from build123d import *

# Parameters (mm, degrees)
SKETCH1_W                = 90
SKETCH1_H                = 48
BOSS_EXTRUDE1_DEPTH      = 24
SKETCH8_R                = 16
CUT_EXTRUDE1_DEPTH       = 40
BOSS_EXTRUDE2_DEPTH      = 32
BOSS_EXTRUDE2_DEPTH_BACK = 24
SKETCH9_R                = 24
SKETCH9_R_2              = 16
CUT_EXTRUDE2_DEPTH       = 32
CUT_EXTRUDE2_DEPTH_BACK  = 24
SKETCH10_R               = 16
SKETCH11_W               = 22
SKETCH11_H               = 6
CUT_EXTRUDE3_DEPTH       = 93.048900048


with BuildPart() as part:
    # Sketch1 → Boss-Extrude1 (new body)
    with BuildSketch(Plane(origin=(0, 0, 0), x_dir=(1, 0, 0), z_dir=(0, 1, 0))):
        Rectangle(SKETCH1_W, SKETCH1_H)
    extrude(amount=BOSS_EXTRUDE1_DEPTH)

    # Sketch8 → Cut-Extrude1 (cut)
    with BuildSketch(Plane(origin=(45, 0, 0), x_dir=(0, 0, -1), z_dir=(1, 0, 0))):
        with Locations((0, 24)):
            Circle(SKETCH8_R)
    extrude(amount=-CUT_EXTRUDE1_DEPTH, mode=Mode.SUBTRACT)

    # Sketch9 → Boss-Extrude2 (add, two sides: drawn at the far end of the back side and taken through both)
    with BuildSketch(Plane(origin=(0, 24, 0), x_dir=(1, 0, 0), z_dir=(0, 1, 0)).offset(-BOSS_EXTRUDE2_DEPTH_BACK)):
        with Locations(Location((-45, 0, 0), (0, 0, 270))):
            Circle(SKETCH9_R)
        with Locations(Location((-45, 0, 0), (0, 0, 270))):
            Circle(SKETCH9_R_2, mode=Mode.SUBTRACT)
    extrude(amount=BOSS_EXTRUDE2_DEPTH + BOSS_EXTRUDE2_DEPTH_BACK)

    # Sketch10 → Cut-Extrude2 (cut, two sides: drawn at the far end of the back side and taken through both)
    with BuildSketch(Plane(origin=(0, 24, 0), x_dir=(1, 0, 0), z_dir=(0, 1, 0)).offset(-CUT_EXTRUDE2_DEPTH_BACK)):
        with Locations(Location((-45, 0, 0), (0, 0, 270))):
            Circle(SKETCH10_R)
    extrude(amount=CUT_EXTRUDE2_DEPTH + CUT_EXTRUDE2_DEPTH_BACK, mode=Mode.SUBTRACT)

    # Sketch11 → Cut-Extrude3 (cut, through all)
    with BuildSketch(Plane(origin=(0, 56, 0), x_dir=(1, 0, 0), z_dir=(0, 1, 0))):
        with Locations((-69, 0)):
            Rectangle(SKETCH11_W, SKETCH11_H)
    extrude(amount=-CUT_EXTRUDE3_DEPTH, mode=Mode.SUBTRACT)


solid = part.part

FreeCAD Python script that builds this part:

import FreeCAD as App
import Part
import Sketcher

V = App.Vector
Q = App.Units.Quantity


def add_polygon(sketch, points):
    """Adds a closed chain of lines whose ends are joined by coincident constraints."""
    first, n = sketch.GeometryCount, len(points)
    for a, b in zip(points, points[1:] + points[:1]):
        sketch.addGeometry(Part.LineSegment(App.Vector(*a, 0), App.Vector(*b, 0)), False)
    for i in range(n):
        sketch.addConstraint(Sketcher.Constraint("Coincident", first + i, 2, first + (i + 1) % n, 1))

doc = App.newDocument("Part")
body = doc.addObject("PartDesign::Body", "Body")

# Sketch on XZ plane
sketch1 = body.newObject("Sketcher::SketchObject", "Sketch")
sketch1.AttachmentSupport = (doc.getObject("XZ_Plane"), [""])
sketch1.MapMode = "FlatFace"
add_polygon(sketch1, [(-45, -24), (-45, 24), (45, 24), (45, -24)])  # lines 0-3
sketch1.addConstraint([
    Sketcher.Constraint("Vertical", 0),
    Sketcher.Constraint("Horizontal", 1),
    Sketcher.Constraint("Vertical", 2),
    Sketcher.Constraint("Horizontal", 3),
    Sketcher.Constraint("Symmetric", 0, 2, 2, 2, -1, 1),
    Sketcher.Constraint("DistanceX", 1, 1, 1, 2, Q("90 mm")),
    Sketcher.Constraint("DistanceY", 0, 1, 0, 2, Q("48 mm")),
])
pad1 = body.newObject("PartDesign::Pad", "Pad")
pad1.Profile = sketch1
pad1.Length = 24
pad1.Reversed = True

# Sketch on YZ plane
sketch2 = body.newObject("Sketcher::SketchObject", "Sketch001")
sketch2.AttachmentSupport = (doc.getObject("YZ_Plane"), [""])
sketch2.MapMode = "FlatFace"
sketch2.AttachmentOffset = App.Placement(V(0, 0, 45), App.Rotation())
sketch2.addGeometry(Part.Circle(V(24, 0, 0), V(0, 0, 1), 16), False)
sketch2.addConstraint([
    Sketcher.Constraint("PointOnObject", 0, 3, -1),
    Sketcher.Constraint("Diameter", 0, Q("32 mm")),
    Sketcher.Constraint("DistanceX", -1, 1, 0, 3, Q("24 mm")),
])
pocket1 = body.newObject("PartDesign::Pocket", "Pocket")
pocket1.Profile = sketch2
pocket1.Length = 40

# Sketch on XZ plane
sketch3 = body.newObject("Sketcher::SketchObject", "Sketch002")
sketch3.AttachmentSupport = (doc.getObject("XZ_Plane"), [""])
sketch3.MapMode = "FlatFace"
sketch3.AttachmentOffset = App.Placement(V(0, 0, -24), App.Rotation())
sketch3.addGeometry([
    Part.Circle(V(-45, 0, 0), V(0, 0, 1), 24),
    Part.Circle(V(-45, 0, 0), V(0, 0, 1), 16),
], False)
sketch3.addConstraint([
    Sketcher.Constraint("Coincident", 1, 3, 0, 3),
    Sketcher.Constraint("PointOnObject", 0, 3, -1),
    Sketcher.Constraint("Diameter", 0, Q("48 mm")),
    Sketcher.Constraint("Diameter", 1, Q("32 mm")),
    Sketcher.Constraint("DistanceX", 0, 3, -1, 1, Q("45 mm")),
])
pad2 = body.newObject("PartDesign::Pad", "Pad001")
pad2.Profile = sketch3
pad2.Type = "TwoLengths"
pad2.Length = 32
pad2.Length2 = 24
pad2.Reversed = True

# Sketch on XZ plane
sketch4 = body.newObject("Sketcher::SketchObject", "Sketch003")
sketch4.AttachmentSupport = (doc.getObject("XZ_Plane"), [""])
sketch4.MapMode = "FlatFace"
sketch4.AttachmentOffset = App.Placement(V(0, 0, -24), App.Rotation())
sketch4.addGeometry(Part.Circle(V(-45, 0, 0), V(0, 0, 1), 16), False)
sketch4.addConstraint([
    Sketcher.Constraint("PointOnObject", 0, 3, -1),
    Sketcher.Constraint("Diameter", 0, Q("32 mm")),
    Sketcher.Constraint("DistanceX", 0, 3, -1, 1, Q("45 mm")),
])
pocket2 = body.newObject("PartDesign::Pocket", "Pocket001")
pocket2.Profile = sketch4
pocket2.Type = "ThroughAll"
pocket2.Midplane = True

# Sketch on XZ plane
sketch5 = body.newObject("Sketcher::SketchObject", "Sketch004")
sketch5.AttachmentSupport = (doc.getObject("XZ_Plane"), [""])
sketch5.MapMode = "FlatFace"
sketch5.AttachmentOffset = App.Placement(V(0, 0, -56), App.Rotation())
add_polygon(sketch5, [(-80, -3), (-80, 3), (-58, 3), (-58, -3)])  # lines 0-3
sketch5.addConstraint([
    Sketcher.Constraint("Vertical", 0),
    Sketcher.Constraint("Horizontal", 1),
    Sketcher.Constraint("Vertical", 2),
    Sketcher.Constraint("Horizontal", 3),
    Sketcher.Constraint("DistanceX", 1, 1, 1, 2, Q("22 mm")),
    Sketcher.Constraint("DistanceY", 0, 1, 0, 2, Q("6 mm")),
    Sketcher.Constraint("DistanceX", 0, 2, -1, 1, Q("80 mm")),
    Sketcher.Constraint("DistanceY", -1, 1, 0, 2, Q("3 mm")),
])
pocket3 = body.newObject("PartDesign::Pocket", "Pocket002")
pocket3.Profile = sketch5
pocket3.Type = "ThroughAll"
pocket3.Reversed = True

doc.recompute()
